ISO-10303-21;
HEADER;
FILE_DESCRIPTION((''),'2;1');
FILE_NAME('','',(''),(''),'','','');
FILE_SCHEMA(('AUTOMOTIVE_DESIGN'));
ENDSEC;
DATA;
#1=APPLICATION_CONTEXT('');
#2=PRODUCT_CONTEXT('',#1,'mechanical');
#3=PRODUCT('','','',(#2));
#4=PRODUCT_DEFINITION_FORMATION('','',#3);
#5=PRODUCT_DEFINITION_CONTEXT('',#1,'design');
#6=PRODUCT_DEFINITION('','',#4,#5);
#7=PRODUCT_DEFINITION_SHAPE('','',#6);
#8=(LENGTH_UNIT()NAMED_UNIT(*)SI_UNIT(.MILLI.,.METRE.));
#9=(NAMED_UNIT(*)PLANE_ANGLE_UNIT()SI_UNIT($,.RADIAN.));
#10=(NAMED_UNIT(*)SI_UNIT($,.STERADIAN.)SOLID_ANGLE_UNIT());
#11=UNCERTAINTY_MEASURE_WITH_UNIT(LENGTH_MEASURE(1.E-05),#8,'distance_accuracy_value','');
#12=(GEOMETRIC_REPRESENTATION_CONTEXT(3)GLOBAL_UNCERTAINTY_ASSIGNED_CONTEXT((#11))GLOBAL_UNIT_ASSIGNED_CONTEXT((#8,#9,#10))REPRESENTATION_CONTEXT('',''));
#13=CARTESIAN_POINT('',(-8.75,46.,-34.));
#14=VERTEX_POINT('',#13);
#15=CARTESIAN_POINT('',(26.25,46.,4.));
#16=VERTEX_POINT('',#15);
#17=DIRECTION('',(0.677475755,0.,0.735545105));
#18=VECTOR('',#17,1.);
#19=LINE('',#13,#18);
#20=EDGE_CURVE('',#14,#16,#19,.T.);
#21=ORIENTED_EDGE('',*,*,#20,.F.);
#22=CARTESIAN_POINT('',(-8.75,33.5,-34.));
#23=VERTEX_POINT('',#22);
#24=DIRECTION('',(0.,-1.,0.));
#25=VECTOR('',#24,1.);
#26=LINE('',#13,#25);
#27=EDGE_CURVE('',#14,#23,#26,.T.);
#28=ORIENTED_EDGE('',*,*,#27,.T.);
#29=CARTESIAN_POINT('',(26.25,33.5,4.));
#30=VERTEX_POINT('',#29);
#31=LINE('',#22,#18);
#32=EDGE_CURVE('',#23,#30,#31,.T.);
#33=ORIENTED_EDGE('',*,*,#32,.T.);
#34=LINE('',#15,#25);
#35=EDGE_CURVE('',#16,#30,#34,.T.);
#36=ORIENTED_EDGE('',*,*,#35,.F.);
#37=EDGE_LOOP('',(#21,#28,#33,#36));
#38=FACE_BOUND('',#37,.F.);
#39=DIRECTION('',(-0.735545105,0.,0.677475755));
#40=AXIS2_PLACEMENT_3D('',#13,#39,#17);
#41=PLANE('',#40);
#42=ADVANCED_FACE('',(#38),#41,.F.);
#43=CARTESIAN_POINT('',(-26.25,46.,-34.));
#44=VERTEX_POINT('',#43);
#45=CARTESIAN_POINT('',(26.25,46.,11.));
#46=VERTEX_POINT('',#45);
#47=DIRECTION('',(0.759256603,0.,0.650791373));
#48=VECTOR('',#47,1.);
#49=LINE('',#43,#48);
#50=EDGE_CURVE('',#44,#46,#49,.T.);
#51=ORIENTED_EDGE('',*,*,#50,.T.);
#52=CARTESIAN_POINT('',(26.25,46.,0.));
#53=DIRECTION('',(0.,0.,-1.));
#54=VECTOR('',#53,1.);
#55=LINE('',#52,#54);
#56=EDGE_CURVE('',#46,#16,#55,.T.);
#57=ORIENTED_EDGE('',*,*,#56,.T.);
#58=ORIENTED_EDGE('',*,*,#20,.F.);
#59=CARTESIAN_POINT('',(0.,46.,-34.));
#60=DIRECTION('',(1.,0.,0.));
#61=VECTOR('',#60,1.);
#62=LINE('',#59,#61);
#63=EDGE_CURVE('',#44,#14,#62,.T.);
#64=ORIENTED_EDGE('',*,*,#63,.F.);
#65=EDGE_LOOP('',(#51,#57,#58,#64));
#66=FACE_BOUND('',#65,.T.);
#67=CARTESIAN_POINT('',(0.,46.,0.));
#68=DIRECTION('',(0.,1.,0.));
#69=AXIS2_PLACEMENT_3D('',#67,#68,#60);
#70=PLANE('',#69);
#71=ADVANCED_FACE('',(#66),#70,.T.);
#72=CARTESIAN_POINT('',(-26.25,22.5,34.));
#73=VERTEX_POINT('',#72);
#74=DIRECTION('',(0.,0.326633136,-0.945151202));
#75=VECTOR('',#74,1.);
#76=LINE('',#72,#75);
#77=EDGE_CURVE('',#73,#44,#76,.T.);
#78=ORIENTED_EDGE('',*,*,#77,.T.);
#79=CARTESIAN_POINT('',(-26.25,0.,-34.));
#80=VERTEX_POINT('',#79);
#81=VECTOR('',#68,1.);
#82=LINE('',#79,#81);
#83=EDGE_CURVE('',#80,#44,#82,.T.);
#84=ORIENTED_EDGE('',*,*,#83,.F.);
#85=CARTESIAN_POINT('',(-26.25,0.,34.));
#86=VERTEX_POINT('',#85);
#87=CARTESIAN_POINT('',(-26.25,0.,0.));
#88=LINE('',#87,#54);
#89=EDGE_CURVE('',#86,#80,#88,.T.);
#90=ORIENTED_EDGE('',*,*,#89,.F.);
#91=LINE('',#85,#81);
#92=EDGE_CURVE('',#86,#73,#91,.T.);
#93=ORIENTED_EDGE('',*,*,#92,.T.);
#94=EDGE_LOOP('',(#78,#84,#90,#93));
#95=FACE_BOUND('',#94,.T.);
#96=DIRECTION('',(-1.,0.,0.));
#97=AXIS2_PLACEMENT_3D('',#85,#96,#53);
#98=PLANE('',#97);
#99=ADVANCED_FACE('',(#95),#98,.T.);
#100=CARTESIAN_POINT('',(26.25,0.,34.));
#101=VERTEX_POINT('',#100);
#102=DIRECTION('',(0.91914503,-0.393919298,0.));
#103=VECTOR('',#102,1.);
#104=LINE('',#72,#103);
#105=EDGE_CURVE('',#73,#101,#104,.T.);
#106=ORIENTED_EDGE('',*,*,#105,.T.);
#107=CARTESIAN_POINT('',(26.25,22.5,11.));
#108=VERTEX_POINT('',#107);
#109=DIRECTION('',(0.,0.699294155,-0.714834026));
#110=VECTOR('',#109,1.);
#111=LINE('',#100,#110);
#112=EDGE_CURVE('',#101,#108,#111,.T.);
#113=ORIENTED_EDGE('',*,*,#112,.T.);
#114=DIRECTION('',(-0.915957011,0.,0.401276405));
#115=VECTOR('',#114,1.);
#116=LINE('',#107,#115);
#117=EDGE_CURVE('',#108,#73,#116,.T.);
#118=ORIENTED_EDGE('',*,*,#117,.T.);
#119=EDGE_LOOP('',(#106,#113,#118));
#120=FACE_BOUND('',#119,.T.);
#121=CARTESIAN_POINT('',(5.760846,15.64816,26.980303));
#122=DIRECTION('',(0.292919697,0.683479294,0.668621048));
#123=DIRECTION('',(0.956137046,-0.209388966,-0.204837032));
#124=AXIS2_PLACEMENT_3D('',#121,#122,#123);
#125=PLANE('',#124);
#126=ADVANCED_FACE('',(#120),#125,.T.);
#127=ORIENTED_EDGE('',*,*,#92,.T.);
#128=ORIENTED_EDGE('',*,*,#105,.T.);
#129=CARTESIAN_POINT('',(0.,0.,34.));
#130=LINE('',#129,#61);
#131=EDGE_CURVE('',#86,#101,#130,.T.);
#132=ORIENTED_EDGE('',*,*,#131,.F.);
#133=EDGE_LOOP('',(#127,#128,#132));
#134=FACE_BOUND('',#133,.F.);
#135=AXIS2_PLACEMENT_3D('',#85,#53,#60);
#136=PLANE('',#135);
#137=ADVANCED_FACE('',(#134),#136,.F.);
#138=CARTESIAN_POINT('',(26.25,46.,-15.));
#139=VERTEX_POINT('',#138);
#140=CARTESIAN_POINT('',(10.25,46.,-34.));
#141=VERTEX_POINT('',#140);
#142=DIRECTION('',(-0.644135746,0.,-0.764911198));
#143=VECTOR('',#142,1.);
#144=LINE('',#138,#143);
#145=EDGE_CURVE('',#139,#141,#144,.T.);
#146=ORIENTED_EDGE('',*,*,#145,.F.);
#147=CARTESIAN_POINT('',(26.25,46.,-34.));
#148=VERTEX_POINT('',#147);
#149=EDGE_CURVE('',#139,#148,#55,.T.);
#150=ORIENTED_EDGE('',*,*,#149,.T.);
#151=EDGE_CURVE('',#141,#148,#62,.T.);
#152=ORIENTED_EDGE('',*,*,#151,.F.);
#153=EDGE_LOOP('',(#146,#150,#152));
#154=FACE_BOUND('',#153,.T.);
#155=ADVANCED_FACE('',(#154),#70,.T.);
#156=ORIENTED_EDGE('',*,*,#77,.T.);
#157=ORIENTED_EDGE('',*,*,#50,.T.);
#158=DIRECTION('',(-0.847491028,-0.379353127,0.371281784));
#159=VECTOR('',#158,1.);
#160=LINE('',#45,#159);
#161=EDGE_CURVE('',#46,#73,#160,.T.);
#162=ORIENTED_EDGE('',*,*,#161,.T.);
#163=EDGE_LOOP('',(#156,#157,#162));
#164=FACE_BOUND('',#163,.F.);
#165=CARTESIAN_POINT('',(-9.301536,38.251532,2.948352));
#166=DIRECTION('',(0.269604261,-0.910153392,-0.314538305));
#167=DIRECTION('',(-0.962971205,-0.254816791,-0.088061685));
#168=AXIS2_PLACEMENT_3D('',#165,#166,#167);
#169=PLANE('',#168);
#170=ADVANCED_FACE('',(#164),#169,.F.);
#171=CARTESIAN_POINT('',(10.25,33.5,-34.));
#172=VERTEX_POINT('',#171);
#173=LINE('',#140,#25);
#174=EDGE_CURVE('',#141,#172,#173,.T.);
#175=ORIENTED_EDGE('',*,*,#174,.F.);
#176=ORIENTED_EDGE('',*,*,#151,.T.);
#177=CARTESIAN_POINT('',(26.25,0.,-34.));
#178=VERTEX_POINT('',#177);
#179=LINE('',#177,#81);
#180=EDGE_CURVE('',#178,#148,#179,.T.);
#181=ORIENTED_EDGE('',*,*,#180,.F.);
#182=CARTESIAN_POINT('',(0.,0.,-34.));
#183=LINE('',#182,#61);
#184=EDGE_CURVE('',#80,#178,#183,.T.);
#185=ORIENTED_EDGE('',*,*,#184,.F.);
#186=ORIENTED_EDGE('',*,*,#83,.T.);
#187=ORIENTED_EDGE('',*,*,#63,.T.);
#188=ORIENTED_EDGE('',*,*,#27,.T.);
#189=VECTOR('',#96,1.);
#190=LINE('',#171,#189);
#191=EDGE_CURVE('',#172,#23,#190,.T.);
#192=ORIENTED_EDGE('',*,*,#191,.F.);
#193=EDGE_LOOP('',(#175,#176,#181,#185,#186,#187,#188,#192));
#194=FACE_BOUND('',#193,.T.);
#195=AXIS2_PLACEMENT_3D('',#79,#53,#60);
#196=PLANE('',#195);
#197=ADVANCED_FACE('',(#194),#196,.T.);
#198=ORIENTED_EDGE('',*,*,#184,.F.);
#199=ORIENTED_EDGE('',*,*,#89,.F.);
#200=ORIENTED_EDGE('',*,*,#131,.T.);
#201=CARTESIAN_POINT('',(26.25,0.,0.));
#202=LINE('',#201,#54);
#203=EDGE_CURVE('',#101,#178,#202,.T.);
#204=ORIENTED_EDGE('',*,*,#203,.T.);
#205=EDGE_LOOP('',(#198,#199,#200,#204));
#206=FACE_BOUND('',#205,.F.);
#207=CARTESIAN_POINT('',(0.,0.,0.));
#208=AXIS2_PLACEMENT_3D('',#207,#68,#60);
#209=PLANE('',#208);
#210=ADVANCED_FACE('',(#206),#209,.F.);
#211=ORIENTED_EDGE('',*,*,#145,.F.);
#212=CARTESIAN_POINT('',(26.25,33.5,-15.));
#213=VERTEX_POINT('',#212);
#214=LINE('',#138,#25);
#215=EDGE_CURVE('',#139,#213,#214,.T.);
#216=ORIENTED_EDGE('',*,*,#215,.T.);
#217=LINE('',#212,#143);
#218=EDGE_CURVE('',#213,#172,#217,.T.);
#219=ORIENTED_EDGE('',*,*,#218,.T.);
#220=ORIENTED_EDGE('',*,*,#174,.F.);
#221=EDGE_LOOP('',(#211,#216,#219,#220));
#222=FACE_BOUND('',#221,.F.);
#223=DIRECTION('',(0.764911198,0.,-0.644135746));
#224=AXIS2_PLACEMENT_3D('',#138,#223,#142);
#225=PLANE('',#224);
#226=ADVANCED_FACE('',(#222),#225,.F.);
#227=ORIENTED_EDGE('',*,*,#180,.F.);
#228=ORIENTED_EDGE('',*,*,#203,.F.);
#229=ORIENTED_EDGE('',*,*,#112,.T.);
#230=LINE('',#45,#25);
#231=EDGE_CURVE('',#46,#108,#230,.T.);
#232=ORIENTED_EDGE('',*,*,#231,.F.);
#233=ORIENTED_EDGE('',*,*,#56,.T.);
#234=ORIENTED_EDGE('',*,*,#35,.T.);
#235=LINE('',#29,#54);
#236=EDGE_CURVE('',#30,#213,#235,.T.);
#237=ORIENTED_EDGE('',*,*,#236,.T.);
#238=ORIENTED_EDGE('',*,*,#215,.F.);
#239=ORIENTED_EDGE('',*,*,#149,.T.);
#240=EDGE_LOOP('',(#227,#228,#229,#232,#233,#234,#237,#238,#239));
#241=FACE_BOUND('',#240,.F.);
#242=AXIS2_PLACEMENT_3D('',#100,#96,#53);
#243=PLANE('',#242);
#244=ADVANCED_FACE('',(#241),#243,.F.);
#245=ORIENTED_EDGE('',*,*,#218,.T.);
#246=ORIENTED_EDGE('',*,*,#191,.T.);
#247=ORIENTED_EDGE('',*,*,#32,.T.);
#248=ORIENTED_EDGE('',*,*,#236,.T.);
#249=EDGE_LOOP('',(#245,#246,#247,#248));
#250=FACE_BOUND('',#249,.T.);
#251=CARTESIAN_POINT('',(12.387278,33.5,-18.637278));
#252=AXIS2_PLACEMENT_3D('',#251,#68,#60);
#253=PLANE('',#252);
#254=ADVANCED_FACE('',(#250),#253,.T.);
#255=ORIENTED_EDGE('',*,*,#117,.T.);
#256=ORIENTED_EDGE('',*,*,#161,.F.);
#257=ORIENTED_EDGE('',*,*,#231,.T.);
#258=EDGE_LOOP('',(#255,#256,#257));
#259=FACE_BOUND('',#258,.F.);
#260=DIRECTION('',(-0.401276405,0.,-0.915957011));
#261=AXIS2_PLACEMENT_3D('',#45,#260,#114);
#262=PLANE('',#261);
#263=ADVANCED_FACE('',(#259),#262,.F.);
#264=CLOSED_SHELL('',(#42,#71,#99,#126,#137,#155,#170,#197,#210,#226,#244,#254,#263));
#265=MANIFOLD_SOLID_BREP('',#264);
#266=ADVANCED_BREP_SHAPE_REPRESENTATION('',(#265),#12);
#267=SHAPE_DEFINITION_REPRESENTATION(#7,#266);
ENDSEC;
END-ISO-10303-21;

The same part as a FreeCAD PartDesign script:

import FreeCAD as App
import Part
import Sketcher
Q = App.Units.Quantity

doc = App.newDocument("Part")
params = doc.addObject("Spreadsheet::Sheet", "Params")
for row, (alias, value) in enumerate([
    ("sketch1_height", "68 mm"),
    ("sketch1_width", "52.5 mm"),
    ("pad1_length", "46 mm"),
    ("sketch2_width", "19 mm"),
    ("pocket1_length", "12.5 mm"),
    ("sketch3_height", "23 mm"),
    ("sketch3_width", "52.5 mm"),
    ("pocket2_length", "23.5 mm"),
    ("pocket3_length", "15.378284 mm"),
    ("pocket4_length", "21.388605 mm"),
], start=1):
    params.set(f"A{row}", alias)
    params.set(f"B{row}", "=" + value)
    params.setAlias(f"B{row}", alias)

body = doc.addObject("PartDesign::Body", "Body")

sketch1 = doc.addObject("Sketcher::SketchObject", "Sketch")
body.addObject(sketch1)
sketch1.AttachmentSupport = (doc.XZ_Plane, [""])
sketch1.MapMode = "FlatFace"
sketch1.addGeometry([
    Part.LineSegment(App.Vector(-26, -34, 0), App.Vector(-26, 34, 0)),
    Part.LineSegment(App.Vector(-26, 34, 0), App.Vector(26, 34, 0)),
    Part.LineSegment(App.Vector(26, 34, 0), App.Vector(26, -34, 0)),
    Part.LineSegment(App.Vector(26, -34, 0), App.Vector(-26, -34, 0)),
], False)
sketch1.addConstraint([
    Sketcher.Constraint("Coincident", 0, 2, 1, 1),
    Sketcher.Constraint("Coincident", 1, 2, 2, 1),
    Sketcher.Constraint("Coincident", 2, 2, 3, 1),
    Sketcher.Constraint("Coincident", 3, 2, 0, 1),
    Sketcher.Constraint("Vertical", 0),
    Sketcher.Constraint("Horizontal", 1),
    Sketcher.Constraint("Vertical", 2),
    Sketcher.Constraint("Horizontal", 3),
    Sketcher.Constraint("Symmetric", 0, 2, 2, 2, -1, 1),
    Sketcher.Constraint("DistanceY", 0, 1, 0, 2, Q("68 mm")),
    Sketcher.Constraint("DistanceX", 1, 1, 1, 2, Q("52.5 mm")),
])
sketch1.setExpression("Constraints[9]", "Params.sketch1_height")
sketch1.setExpression("Constraints[10]", "Params.sketch1_width")
pad1 = doc.addObject("PartDesign::Pad", "Pad")
body.addObject(pad1)
pad1.Profile = sketch1
pad1.setExpression("Length", "Params.pad1_length")
pad1.Reversed = True

sketch2 = doc.addObject("Sketcher::SketchObject", "Sketch001")
body.addObject(sketch2)
sketch2.AttachmentSupport = (doc.XZ_Plane, [""])
sketch2.MapMode = "FlatFace"
sketch2.AttachmentOffset = App.Placement(App.Vector(0, 0, -46), App.Rotation())
sketch2.addGeometry([
    Part.LineSegment(App.Vector(26, -15, 0), App.Vector(10, -34, 0)),
    Part.LineSegment(App.Vector(10, -34, 0), App.Vector(-9, -34, 0)),
    Part.LineSegment(App.Vector(-9, -34, 0), App.Vector(26, 4, 0)),
    Part.LineSegment(App.Vector(26, 4, 0), App.Vector(26, -15, 0)),
], False)
sketch2.addConstraint([
    Sketcher.Constraint("Coincident", 0, 2, 1, 1),
    Sketcher.Constraint("Coincident", 1, 2, 2, 1),
    Sketcher.Constraint("Coincident", 2, 2, 3, 1),
    Sketcher.Constraint("Coincident", 3, 2, 0, 1),
    Sketcher.Constraint("Horizontal", 1),
    Sketcher.Constraint("Vertical", 3),
    Sketcher.Constraint("Equal", 1, 3),
    Sketcher.Constraint("DistanceX", 1, 2, 1, 1, Q("19 mm")),
    Sketcher.Constraint("DistanceY", 0, 2, -1, 1, Q("34 mm")),
    Sketcher.Constraint("DistanceY", -1, 1, 2, 2, Q("4 mm")),
    Sketcher.Constraint("DistanceX", 0, 2, 2, 2, Q("16 mm")),
    Sketcher.Constraint("DistanceX", -1, 1, 0, 2, Q("10.25 mm")),
])
sketch2.setExpression("Constraints[7]", "Params.sketch2_width")
pocket1 = doc.addObject("PartDesign::Pocket", "Pocket")
body.addObject(pocket1)
pocket1.Profile = sketch2
pocket1.setExpression("Length", "Params.pocket1_length")
pocket1.Reversed = True

sketch3 = doc.addObject("Sketcher::SketchObject", "Sketch002")
body.addObject(sketch3)
sketch3.AttachmentSupport = (doc.XZ_Plane, [""])
sketch3.MapMode = "FlatFace"
sketch3.AttachmentOffset = App.Placement(App.Vector(0, 0, -46), App.Rotation())
sketch3.addGeometry([
    Part.LineSegment(App.Vector(26, 34, 0), App.Vector(26, 11, 0)),
    Part.LineSegment(App.Vector(26, 11, 0), App.Vector(-26, 34, 0)),
    Part.LineSegment(App.Vector(-26, 34, 0), App.Vector(26, 34, 0)),
], False)
sketch3.addConstraint([
    Sketcher.Constraint("Coincident", 0, 2, 1, 1),
    Sketcher.Constraint("Coincident", 1, 2, 2, 1),
    Sketcher.Constraint("Coincident", 2, 2, 0, 1),
    Sketcher.Constraint("Vertical", 0),
    Sketcher.Constraint("Horizontal", 2),
    Sketcher.Constraint("DistanceY", 0, 2, 0, 1, Q("23 mm")),
    Sketcher.Constraint("DistanceX", 2, 1, 2, 2, Q("52.5 mm")),
    Sketcher.Constraint("DistanceY", -1, 1, 0, 2, Q("11 mm")),
    Sketcher.Constraint("DistanceX", -1, 1, 0, 2, Q("26.25 mm")),
])
sketch3.setExpression("Constraints[5]", "Params.sketch3_height")
sketch3.setExpression("Constraints[6]", "Params.sketch3_width")
pocket2 = doc.addObject("PartDesign::Pocket", "Pocket001")
body.addObject(pocket2)
pocket2.Profile = sketch3
pocket2.setExpression("Length", "Params.pocket2_length")
pocket2.Reversed = True

sketch4 = doc.addObject("Sketcher::SketchObject", "Sketch003")
body.addObject(sketch4)
sketch4.Placement = App.Placement(App.Vector(8.911279, 20.792983, 20.340962), App.Rotation(App.Vector(0.956137046, -0.209388966, -0.204837032), App.Vector(0, 0.699294155, -0.714834026), App.Vector(0.292919697, 0.683479294, 0.668621048), "ZXY"))
sketch4.addGeometry([
    Part.LineSegment(App.Vector(18, 8, 0), App.Vector(-37, -9, 0)),
    Part.LineSegment(App.Vector(-37, -9, 0), App.Vector(18, -24, 0)),
    Part.LineSegment(App.Vector(18, -24, 0), App.Vector(18, 8, 0)),
], False)
sketch4.addConstraint([
    Sketcher.Constraint("Coincident", 0, 2, 1, 1),
    Sketcher.Constraint("Coincident", 1, 2, 2, 1),
    Sketcher.Constraint("Coincident", 2, 2, 0, 1),
    Sketcher.Constraint("Vertical", 2),
    Sketcher.Constraint("DistanceY", 2, 1, 2, 2, Q("32.175301 mm")),
    Sketcher.Constraint("Distance", 0, Q("57.3171 mm")),
    Sketcher.Constraint("Distance", 1, Q("57.118298 mm")),
    Sketcher.Constraint("DistanceX", 0, 2, -1, 1, Q("36.774308 mm")),
    Sketcher.Constraint("DistanceY", 0, 2, -1, 1, Q("8.570238 mm")),
])
pocket3 = doc.addObject("PartDesign::Pocket", "Pocket002")
body.addObject(pocket3)
pocket3.Profile = sketch4
pocket3.setExpression("Length", "Params.pocket3_length")
pocket3.Reversed = True

sketch5 = doc.addObject("Sketcher::SketchObject", "Sketch004")
body.addObject(sketch5)
sketch5.Placement = App.Placement(App.Vector(-10.312327, 34.813245, 12.031048), App.Rotation(App.Vector(-0.962971205, -0.254816791, -0.088061685), App.Vector(0, 0.326633136, -0.945151201), App.Vector(0.269604261, -0.910153392, -0.314538305), "ZXY"))
sketch5.addGeometry([
    Part.LineSegment(App.Vector(17, 47, 0), App.Vector(-38, 5, 0)),
    Part.LineSegment(App.Vector(-38, 5, 0), App.Vector(17, -25, 0)),
    Part.LineSegment(App.Vector(17, -25, 0), App.Vector(17, 47, 0)),
], False)
sketch5.addConstraint([
    Sketcher.Constraint("Coincident", 0, 2, 1, 1),
    Sketcher.Constraint("Coincident", 1, 2, 2, 1),
    Sketcher.Constraint("Coincident", 2, 2, 0, 1),
    Sketcher.Constraint("Vertical", 2),
    Sketcher.Constraint("DistanceY", 2, 1, 2, 2, Q("71.94616 mm")),
    Sketcher.Constraint("Distance", 1, Q("61.947558 mm")),
    Sketcher.Constraint("DistanceY", -1, 1, 0, 2, Q("4.628461 mm")),
    Sketcher.Constraint("DistanceX", -1, 1, 1, 2, Q("16.550519 mm")),
    Sketcher.Constraint("Distance", 0, Q("69.146583 mm")),
])
pocket4 = doc.addObject("PartDesign::Pocket", "Pocket003")
body.addObject(pocket4)
pocket4.Profile = sketch5
pocket4.setExpression("Length", "Params.pocket4_length")

doc.recompute()
